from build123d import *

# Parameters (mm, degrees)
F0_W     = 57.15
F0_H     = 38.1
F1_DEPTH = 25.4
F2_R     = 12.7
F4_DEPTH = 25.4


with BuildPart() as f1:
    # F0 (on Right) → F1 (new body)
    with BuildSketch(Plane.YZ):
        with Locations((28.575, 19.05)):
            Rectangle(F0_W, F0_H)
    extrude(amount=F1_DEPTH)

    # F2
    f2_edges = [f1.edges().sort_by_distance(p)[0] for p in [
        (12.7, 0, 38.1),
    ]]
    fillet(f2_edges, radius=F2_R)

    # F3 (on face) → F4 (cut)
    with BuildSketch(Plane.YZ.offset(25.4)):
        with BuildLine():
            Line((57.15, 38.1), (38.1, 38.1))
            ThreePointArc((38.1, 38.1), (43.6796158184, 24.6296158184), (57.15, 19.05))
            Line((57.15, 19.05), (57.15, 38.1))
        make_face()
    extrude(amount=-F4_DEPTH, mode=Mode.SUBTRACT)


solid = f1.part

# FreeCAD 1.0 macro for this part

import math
import FreeCAD as App
import Part
import Sketcher
from FreeCAD import Vector
Q = App.Units.Quantity


def edges_at(feature, points):
    """Names of the edges that pass closest to the given points."""
    edges = feature.Shape.Edges
    near = lambda p: min(range(len(edges)), key=lambda i: edges[i].distToShape(Part.Vertex(*p))[0])
    return sorted({f"Edge{near(p) + 1}" for p in points})

doc = App.newDocument("Part")
body = doc.addObject("PartDesign::Body", "Body")

# Sketch on YZ plane
sketch1 = body.newObject("Sketcher::SketchObject", "Sketch")
sketch1.AttachmentSupport = (doc.getObject("YZ_Plane"), [""])
sketch1.MapMode = "FlatFace"
sketch1.addGeometry([
    Part.LineSegment(Vector(0, 38.1, 0), Vector(0, 0, 0)),
    Part.LineSegment(Vector(0, 0, 0), Vector(57.15, 0, 0)),
    Part.LineSegment(Vector(57.15, 0, 0), Vector(57.15, 38.1, 0)),
    Part.LineSegment(Vector(57.15, 38.1, 0), Vector(0, 38.1, 0)),
], False)
sketch1.addConstraint([
    Sketcher.Constraint("Coincident", 0, 2, 1, 1),
    Sketcher.Constraint("Coincident", 1, 2, 2, 1),
    Sketcher.Constraint("Coincident", 2, 2, 3, 1),
    Sketcher.Constraint("Coincident", 3, 2, 0, 1),
    Sketcher.Constraint("Vertical", 0),
    Sketcher.Constraint("Horizontal", 1),
    Sketcher.Constraint("Vertical", 2),
    Sketcher.Constraint("Horizontal", 3),
    Sketcher.Constraint("Coincident", 0, 2, -1, 1),
    Sketcher.Constraint("DistanceY", 0, 2, 0, 1, Q("1.5 in")),
    Sketcher.Constraint("DistanceX", 1, 1, 1, 2, Q("2.25 in")),
])
pad1 = body.newObject("PartDesign::Pad", "Pad")
pad1.Profile = sketch1
pad1.Length = Q("1 in")
doc.recompute()

fillet = body.newObject("PartDesign::Fillet", "Fillet")
fillet.Base = (pad1, edges_at(pad1, [(12.7, 0, 38.1)]))
fillet.Radius = Q("0.5 in")

# Sketch on YZ plane
sketch2 = body.newObject("Sketcher::SketchObject", "Sketch001")
sketch2.AttachmentSupport = (doc.getObject("YZ_Plane"), [""])
sketch2.MapMode = "FlatFace"
sketch2.AttachmentOffset = App.Placement(Vector(0, 0, 1 * 25.4), App.Rotation())
sketch2.addGeometry([
    Part.LineSegment(Vector(57.15, 38.1, 0), Vector(38.1, 38.1, 0)),
    Part.ArcOfCircle(Part.Circle(Vector(57.15, 38.1, 0), Vector(0, 0, 1), 19.05), math.radians(180), math.radians(270)),
    Part.LineSegment(Vector(57.15, 19.05, 0), Vector(57.15, 38.1, 0)),
], False)
sketch2.addConstraint([
    Sketcher.Constraint("Coincident", 0, 2, 1, 1),
    Sketcher.Constraint("Coincident", 1, 2, 2, 1),
    Sketcher.Constraint("Coincident", 2, 2, 0, 1),
    Sketcher.Constraint("Horizontal", 0),
    Sketcher.Constraint("Vertical", 2),
    Sketcher.Constraint("Coincident", 2, 2, 1, 3),
    Sketcher.Constraint("Radius", 1, Q("0.75 in")),
    Sketcher.Constraint("DistanceY", -1, 1, 1, 3, Q("1.5 in")),
    Sketcher.Constraint("DistanceX", -1, 1, 0, 2, Q("1.5 in")),
])
pocket1 = body.newObject("PartDesign::Pocket", "Pocket")
pocket1.Profile = sketch2
pocket1.Length = Q("1 in")

doc.recompute()
